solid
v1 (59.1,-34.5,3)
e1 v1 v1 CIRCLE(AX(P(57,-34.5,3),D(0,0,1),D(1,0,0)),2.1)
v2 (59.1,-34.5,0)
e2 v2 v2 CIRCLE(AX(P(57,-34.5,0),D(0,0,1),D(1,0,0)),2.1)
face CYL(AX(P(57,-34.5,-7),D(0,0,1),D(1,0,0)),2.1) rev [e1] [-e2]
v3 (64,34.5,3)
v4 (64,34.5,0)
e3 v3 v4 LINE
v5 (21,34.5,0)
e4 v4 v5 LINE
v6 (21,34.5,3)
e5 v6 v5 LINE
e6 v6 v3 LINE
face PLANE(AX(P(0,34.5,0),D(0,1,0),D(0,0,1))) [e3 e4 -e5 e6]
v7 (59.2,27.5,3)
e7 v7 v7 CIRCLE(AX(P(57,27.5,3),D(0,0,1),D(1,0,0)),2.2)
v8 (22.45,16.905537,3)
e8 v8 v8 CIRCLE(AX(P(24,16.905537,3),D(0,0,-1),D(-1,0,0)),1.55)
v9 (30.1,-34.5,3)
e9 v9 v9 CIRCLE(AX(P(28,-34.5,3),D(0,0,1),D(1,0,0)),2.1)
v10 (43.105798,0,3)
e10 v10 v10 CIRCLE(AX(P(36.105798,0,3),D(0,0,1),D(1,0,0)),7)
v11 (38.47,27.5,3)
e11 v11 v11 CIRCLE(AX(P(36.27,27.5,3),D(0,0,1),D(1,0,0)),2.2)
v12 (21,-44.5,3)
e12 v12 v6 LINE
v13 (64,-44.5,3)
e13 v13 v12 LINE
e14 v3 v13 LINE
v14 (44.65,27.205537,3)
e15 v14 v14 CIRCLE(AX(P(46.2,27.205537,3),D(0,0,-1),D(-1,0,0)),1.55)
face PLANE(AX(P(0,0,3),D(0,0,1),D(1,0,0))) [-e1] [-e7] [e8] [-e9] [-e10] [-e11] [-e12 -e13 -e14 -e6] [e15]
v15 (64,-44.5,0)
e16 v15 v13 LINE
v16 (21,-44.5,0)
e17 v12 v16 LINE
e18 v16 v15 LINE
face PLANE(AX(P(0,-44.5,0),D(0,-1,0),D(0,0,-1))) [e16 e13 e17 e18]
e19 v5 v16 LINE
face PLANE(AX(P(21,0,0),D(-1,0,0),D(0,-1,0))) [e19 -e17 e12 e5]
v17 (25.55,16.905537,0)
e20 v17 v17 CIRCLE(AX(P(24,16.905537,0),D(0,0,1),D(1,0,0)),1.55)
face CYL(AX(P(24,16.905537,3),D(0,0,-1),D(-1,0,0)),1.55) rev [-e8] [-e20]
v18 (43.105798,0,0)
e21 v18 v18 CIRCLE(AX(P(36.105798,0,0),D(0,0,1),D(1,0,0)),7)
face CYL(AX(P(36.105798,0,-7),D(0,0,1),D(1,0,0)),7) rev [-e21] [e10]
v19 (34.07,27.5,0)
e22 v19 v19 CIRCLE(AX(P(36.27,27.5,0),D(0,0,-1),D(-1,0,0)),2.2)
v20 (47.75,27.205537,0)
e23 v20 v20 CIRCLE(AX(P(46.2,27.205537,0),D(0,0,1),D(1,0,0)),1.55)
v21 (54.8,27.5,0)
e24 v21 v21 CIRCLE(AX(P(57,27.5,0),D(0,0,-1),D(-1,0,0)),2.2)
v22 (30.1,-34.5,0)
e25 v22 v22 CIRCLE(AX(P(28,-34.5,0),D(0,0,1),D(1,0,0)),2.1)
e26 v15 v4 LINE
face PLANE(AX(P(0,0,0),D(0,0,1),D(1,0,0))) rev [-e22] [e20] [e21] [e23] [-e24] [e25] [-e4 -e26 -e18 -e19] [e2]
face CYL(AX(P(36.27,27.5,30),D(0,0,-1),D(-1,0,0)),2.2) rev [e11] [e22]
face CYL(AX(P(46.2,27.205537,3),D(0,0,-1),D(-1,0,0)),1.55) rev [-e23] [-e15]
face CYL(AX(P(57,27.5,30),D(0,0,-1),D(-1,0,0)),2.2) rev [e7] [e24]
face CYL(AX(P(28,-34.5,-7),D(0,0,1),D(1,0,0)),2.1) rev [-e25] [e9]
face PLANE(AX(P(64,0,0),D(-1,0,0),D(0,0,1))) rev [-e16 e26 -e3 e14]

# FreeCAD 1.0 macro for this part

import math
import FreeCAD as App
import Part
import Sketcher

doc = App.newDocument("Part")
body = doc.addObject("PartDesign::Body", "Body")

# Sketch on XY plane
sketch1 = body.newObject("Sketcher::SketchObject", "Sketch")
sketch1.AttachmentSupport = (doc.getObject("XY_Plane"), [""])
sketch1.MapMode = "FlatFace"
sketch1.addGeometry([
    Part.LineSegment(App.Vector(-20, 14, 0), App.Vector(-20, -14, 0)),
    Part.LineSegment(App.Vector(-20, -14, 0), App.Vector(20, -14, 0)),
    Part.LineSegment(App.Vector(20, -14, 0), App.Vector(20, 14, 0)),
    Part.LineSegment(App.Vector(20, 14, 0), App.Vector(-20, 14, 0)),
], False)
sketch1.addConstraint([
    Sketcher.Constraint("Coincident", 0, 2, 1, 1),
    Sketcher.Constraint("Coincident", 1, 2, 2, 1),
    Sketcher.Constraint("Coincident", 2, 2, 3, 1),
    Sketcher.Constraint("Coincident", 3, 2, 0, 1),
    Sketcher.Constraint("Vertical", 0),
    Sketcher.Constraint("Horizontal", 1),
    Sketcher.Constraint("Vertical", 2),
    Sketcher.Constraint("Horizontal", 3),
    Sketcher.Constraint("Symmetric", 0, 2, 2, 2, -1, 1),
    Sketcher.Constraint("DistanceX", 1, 1, 1, 2, 40.0),
    Sketcher.Constraint("DistanceY", 0, 2, 0, 1, 29.0),
])
pad1 = body.newObject("PartDesign::Pad", "Pad")
pad1.Profile = sketch1
pad1.Length = 3

# Sketch on XY plane
sketch2 = body.newObject("Sketcher::SketchObject", "Sketch001")
sketch2.AttachmentSupport = (doc.getObject("XY_Plane"), [""])
sketch2.MapMode = "FlatFace"
sketch2.AttachmentOffset = App.Placement(App.Vector(0, 0, 3), App.Rotation())
sketch2.addGeometry([
    Part.ArcOfCircle(Part.Circle(App.Vector(-16.5, 10.5, 0), App.Vector(0, 0, 1), 2.1), math.radians(0), math.radians(90)),  # 0
    Part.ArcOfCircle(Part.Circle(App.Vector(-16.5, 10.5, 0), App.Vector(0, 0, 1), 2.1), math.radians(90), math.radians(180)),  # 1
    Part.ArcOfCircle(Part.Circle(App.Vector(-16.5, 10.5, 0), App.Vector(0, 0, 1), 2.1), math.radians(180), math.radians(360)),  # 2
    Part.ArcOfCircle(Part.Circle(App.Vector(-16.5, -10.5, 0), App.Vector(0, 0, 1), 2.1), math.radians(-180), math.radians(-90)),  # 3
    Part.ArcOfCircle(Part.Circle(App.Vector(-16.5, -10.5, 0), App.Vector(0, 0, 1), 2.1), math.radians(-90), math.radians(0)),  # 4
    Part.ArcOfCircle(Part.Circle(App.Vector(-16.5, -10.5, 0), App.Vector(0, 0, 1), 2.1), math.radians(0), math.radians(180)),  # 5
    Part.ArcOfCircle(Part.Circle(App.Vector(16.5, -10.5, 0), App.Vector(0, 0, 1), 2.1), math.radians(0), math.radians(270)),  # 6
    Part.ArcOfCircle(Part.Circle(App.Vector(16.5, -10.5, 0), App.Vector(0, 0, 1), 2.1), math.radians(-90), math.radians(0)),  # 7
    Part.ArcOfCircle(Part.Circle(App.Vector(16.5, 10.5, 0), App.Vector(0, 0, 1), 2.1), math.radians(0), math.radians(90)),  # 8
    Part.ArcOfCircle(Part.Circle(App.Vector(16.5, 10.5, 0), App.Vector(0, 0, 1), 2.1), math.radians(90), math.radians(360)),  # 9
], False)
sketch2.addConstraint([
    Sketcher.Constraint("Tangent", 0, 2, 1, 1),
    Sketcher.Constraint("Tangent", 1, 2, 2, 1),
    Sketcher.Constraint("Tangent", 2, 2, 0, 1),
    Sketcher.Constraint("Tangent", 3, 2, 4, 1),
    Sketcher.Constraint("Tangent", 4, 2, 5, 1),
    Sketcher.Constraint("Tangent", 5, 2, 3, 1),
    Sketcher.Constraint("Tangent", 6, 1, 7, 2),
    Sketcher.Constraint("Coincident", 7, 1, 6, 2),
    Sketcher.Constraint("Tangent", 8, 1, 9, 2),
    Sketcher.Constraint("Coincident", 9, 1, 8, 2),
    Sketcher.Constraint("Equal", 2, 3),
    Sketcher.Constraint("Equal", 5, 6),
    Sketcher.Constraint("Equal", 7, 8),
    Sketcher.Constraint("Symmetric", 0, 3, 6, 3, -1, 1),
    Sketcher.Constraint("Symmetric", 3, 3, 8, 3, -1, 1),
    Sketcher.Constraint("Symmetric", 3, 3, 6, 3, -2),
    Sketcher.Constraint("Horizontal", 9, 3, 1, 2),
    Sketcher.Constraint("Horizontal", 1, 2, 2, 2),
    Sketcher.Constraint("Horizontal", 7, 3, 4, 2),
    Sketcher.Constraint("Horizontal", 4, 2, 5, 2),
    Sketcher.Constraint("Horizontal", 5, 2, 6, 1),
    Sketcher.Constraint("Horizontal", 2, 2, 8, 1),
    Sketcher.Constraint("Vertical", 5, 3, 0, 2),
    Sketcher.Constraint("Vertical", 0, 2, 3, 2),
    Sketcher.Constraint("Vertical", 9, 3, 7, 1),
    Sketcher.Constraint("Vertical", 7, 1, 9, 1),
    Sketcher.Constraint("Radius", 0, 2.1),
    Sketcher.Constraint("DistanceY", 3, 3, 0, 3, 21.0),
    Sketcher.Constraint("DistanceX", 3, 3, 6, 3, 33.0),
])
pocket1 = body.newObject("PartDesign::Pocket", "Pocket")
pocket1.Profile = sketch2
pocket1.Length = 3

# Sketch on XZ plane
sketch3 = body.newObject("Sketcher::SketchObject", "Sketch002")
sketch3.AttachmentSupport = (doc.getObject("XZ_Plane"), [""])
sketch3.MapMode = "FlatFace"
sketch3.AttachmentOffset = App.Placement(App.Vector(0, 0, 14.5), App.Rotation())
sketch3.addGeometry([
    Part.LineSegment(App.Vector(-20, 3, 0), App.Vector(-20, 0, 0)),
    Part.LineSegment(App.Vector(-20, 0, 0), App.Vector(20, 0, 0)),
    Part.LineSegment(App.Vector(20, 0, 0), App.Vector(20, 3, 0)),
    Part.LineSegment(App.Vector(20, 3, 0), App.Vector(-20, 3, 0)),
], False)
sketch3.addConstraint([
    Sketcher.Constraint("Coincident", 0, 2, 1, 1),
    Sketcher.Constraint("Coincident", 1, 2, 2, 1),
    Sketcher.Constraint("Coincident", 2, 2, 3, 1),
    Sketcher.Constraint("Coincident", 3, 2, 0, 1),
    Sketcher.Constraint("Vertical", 0),
    Sketcher.Constraint("Horizontal", 1),
    Sketcher.Constraint("Vertical", 2),
    Sketcher.Constraint("Horizontal", 3),
    Sketcher.Constraint("Symmetric", 0, 2, 1, 2, -1, 1),
    Sketcher.Constraint("DistanceX", 1, 1, 1, 2, 40.0),
    Sketcher.Constraint("DistanceY", 0, 2, 0, 1, 3.0),
])
pad2 = body.newObject("PartDesign::Pad", "Pad001")
pad2.Profile = sketch3
pad2.Length = 10

# Sketch on XZ plane
sketch4 = body.newObject("Sketcher::SketchObject", "Sketch003")
sketch4.AttachmentSupport = (doc.getObject("XZ_Plane"), [""])
sketch4.MapMode = "FlatFace"
sketch4.AttachmentOffset = App.Placement(App.Vector(0, 0, -14.5), App.Rotation())
sketch4.addGeometry([
    Part.LineSegment(App.Vector(-20, 0, 0), App.Vector(-20, 3, 0)),
    Part.LineSegment(App.Vector(-20, 3, 0), App.Vector(20, 3, 0)),
    Part.LineSegment(App.Vector(20, 3, 0), App.Vector(20, 0, 0)),
    Part.LineSegment(App.Vector(20, 0, 0), App.Vector(-20, 0, 0)),
], False)
sketch4.addConstraint([
    Sketcher.Constraint("Coincident", 0, 2, 1, 1),
    Sketcher.Constraint("Coincident", 1, 2, 2, 1),
    Sketcher.Constraint("Coincident", 2, 2, 3, 1),
    Sketcher.Constraint("Coincident", 3, 2, 0, 1),
    Sketcher.Constraint("Vertical", 0),
    Sketcher.Constraint("Horizontal", 1),
    Sketcher.Constraint("Vertical", 2),
    Sketcher.Constraint("Horizontal", 3),
    Sketcher.Constraint("Symmetric", 2, 2, 3, 2, -1, 1),
    Sketcher.Constraint("DistanceX", 1, 1, 1, 2, 40.0),
    Sketcher.Constraint("DistanceY", 0, 1, 0, 2, 3.0),
])
pad3 = body.newObject("PartDesign::Pad", "Pad002")
pad3.Profile = sketch4
pad3.Length = 10
pad3.Reversed = True

# Sketch on YZ plane
sketch5 = body.newObject("Sketcher::SketchObject", "Sketch004")
sketch5.AttachmentSupport = (doc.getObject("YZ_Plane"), [""])
sketch5.MapMode = "FlatFace"
sketch5.AttachmentOffset = App.Placement(App.Vector(0, 0, 20), App.Rotation())
sketch5.addGeometry([
    Part.LineSegment(App.Vector(24.5, 3, 0), App.Vector(-24.5, 3, 0)),
    Part.LineSegment(App.Vector(-24.5, 3, 0), App.Vector(-24.5, 0, 0)),
    Part.LineSegment(App.Vector(-24.5, 0, 0), App.Vector(24.5, 0, 0)),
    Part.LineSegment(App.Vector(24.5, 0, 0), App.Vector(24.5, 3, 0)),
], False)
sketch5.addConstraint([
    Sketcher.Constraint("Coincident", 0, 2, 1, 1),
    Sketcher.Constraint("Coincident", 1, 2, 2, 1),
    Sketcher.Constraint("Coincident", 2, 2, 3, 1),
    Sketcher.Constraint("Coincident", 3, 2, 0, 1),
    Sketcher.Constraint("Horizontal", 0),
    Sketcher.Constraint("Vertical", 1),
    Sketcher.Constraint("Horizontal", 2),
    Sketcher.Constraint("Vertical", 3),
    Sketcher.Constraint("Symmetric", 1, 2, 2, 2, -1, 1),
    Sketcher.Constraint("DistanceX", 0, 2, 0, 1, 49.0),
    Sketcher.Constraint("DistanceY", 1, 2, 1, 1, 3.0),
])
pad4 = body.newObject("PartDesign::Pad", "Pad003")
pad4.Profile = sketch5
pad4.Length = 42

# Sketch on YZ plane
sketch6 = body.newObject("Sketcher::SketchObject", "Sketch005")
sketch6.AttachmentSupport = (doc.getObject("YZ_Plane"), [""])
sketch6.MapMode = "FlatFace"
sketch6.AttachmentOffset = App.Placement(App.Vector(0, 0, -20), App.Rotation())
sketch6.addGeometry([
    Part.LineSegment(App.Vector(24.5, 0, 0), App.Vector(-24.5, 0, 0)),
    Part.LineSegment(App.Vector(-24.5, 0, 0), App.Vector(-24.5, 3, 0)),
    Part.LineSegment(App.Vector(-24.5, 3, 0), App.Vector(24.5, 3, 0)),
    Part.LineSegment(App.Vector(24.5, 3, 0), App.Vector(24.5, 0, 0)),
], False)
sketch6.addConstraint([
    Sketcher.Constraint("Coincident", 0, 2, 1, 1),
    Sketcher.Constraint("Coincident", 1, 2, 2, 1),
    Sketcher.Constraint("Coincident", 2, 2, 3, 1),
    Sketcher.Constraint("Coincident", 3, 2, 0, 1),
    Sketcher.Constraint("Horizontal", 0),
    Sketcher.Constraint("Vertical", 1),
    Sketcher.Constraint("Horizontal", 2),
    Sketcher.Constraint("Vertical", 3),
    Sketcher.Constraint("Symmetric", 0, 2, 3, 2, -1, 1),
    Sketcher.Constraint("DistanceX", 0, 2, 0, 1, 49.0),
    Sketcher.Constraint("DistanceY", 1, 1, 1, 2, 3.0),
])
pad5 = body.newObject("PartDesign::Pad", "Pad004")
pad5.Profile = sketch6
pad5.Length = 2
pad5.Reversed = True

# Sketch on YZ plane
sketch7 = body.newObject("Sketcher::SketchObject", "Sketch006")
sketch7.AttachmentSupport = (doc.getObject("YZ_Plane"), [""])
sketch7.MapMode = "FlatFace"
sketch7.AttachmentOffset = App.Placement(App.Vector(0, 0, 62), App.Rotation())
sketch7.addGeometry([
    Part.LineSegment(App.Vector(24.5, 3, 0), App.Vector(-24.5, 3, 0)),
    Part.LineSegment(App.Vector(-24.5, 3, 0), App.Vector(-24.5, 0, 0)),
    Part.LineSegment(App.Vector(-24.5, 0, 0), App.Vector(24.5, 0, 0)),
    Part.LineSegment(App.Vector(24.5, 0, 0), App.Vector(24.5, 3, 0)),
], False)
sketch7.addConstraint([
    Sketcher.Constraint("Coincident", 0, 2, 1, 1),
    Sketcher.Constraint("Coincident", 1, 2, 2, 1),
    Sketcher.Constraint("Coincident", 2, 2, 3, 1),
    Sketcher.Constraint("Coincident", 3, 2, 0, 1),
    Sketcher.Constraint("Horizontal", 0),
    Sketcher.Constraint("Vertical", 1),
    Sketcher.Constraint("Horizontal", 2),
    Sketcher.Constraint("Vertical", 3),
    Sketcher.Constraint("Symmetric", 1, 2, 2, 2, -1, 1),
    Sketcher.Constraint("DistanceX", 0, 2, 0, 1, 49.0),
    Sketcher.Constraint("DistanceY", 1, 2, 1, 1, 3.0),
])
pad6 = body.newObject("PartDesign::Pad", "Pad005")
pad6.Profile = sketch7
pad6.Length = 2

# Sketch on XZ plane
sketch8 = body.newObject("Sketcher::SketchObject", "Sketch007")
sketch8.AttachmentSupport = (doc.getObject("XZ_Plane"), [""])
sketch8.MapMode = "FlatFace"
sketch8.AttachmentOffset = App.Placement(App.Vector(0, 0, 24.5), App.Rotation())
sketch8.addGeometry([
    Part.LineSegment(App.Vector(-22, 3, 0), App.Vector(-22, 0, 0)),
    Part.LineSegment(App.Vector(-22, 0, 0), App.Vector(64, 0, 0)),
    Part.LineSegment(App.Vector(64, 0, 0), App.Vector(64, 3, 0)),
    Part.LineSegment(App.Vector(64, 3, 0), App.Vector(-22, 3, 0)),
], False)
sketch8.addConstraint([
    Sketcher.Constraint("Coincident", 0, 2, 1, 1),
    Sketcher.Constraint("Coincident", 1, 2, 2, 1),
    Sketcher.Constraint("Coincident", 2, 2, 3, 1),
    Sketcher.Constraint("Coincident", 3, 2, 0, 1),
    Sketcher.Constraint("Vertical", 0),
    Sketcher.Constraint("Horizontal", 1),
    Sketcher.Constraint("Vertical", 2),
    Sketcher.Constraint("Horizontal", 3),
    Sketcher.Constraint("PointOnObject", 0, 2, -1),
    Sketcher.Constraint("DistanceX", 1, 1, 1, 2, 86.0),
    Sketcher.Constraint("DistanceY", 0, 2, 0, 1, 3.0),
    Sketcher.Constraint("DistanceX", 0, 2, -1, 1, 22.0),
])
pad7 = body.newObject("PartDesign::Pad", "Pad006")
pad7.Profile = sketch8
pad7.Length = 10

# Sketch on XZ plane
sketch9 = body.newObject("Sketcher::SketchObject", "Sketch008")
sketch9.AttachmentSupport = (doc.getObject("XZ_Plane"), [""])
sketch9.MapMode = "FlatFace"
sketch9.AttachmentOffset = App.Placement(App.Vector(0, 0, -24.5), App.Rotation())
sketch9.addGeometry([
    Part.LineSegment(App.Vector(-22, 0, 0), App.Vector(-22, 3, 0)),
    Part.LineSegment(App.Vector(-22, 3, 0), App.Vector(64, 3, 0)),
    Part.LineSegment(App.Vector(64, 3, 0), App.Vector(64, 0, 0)),
    Part.LineSegment(App.Vector(64, 0, 0), App.Vector(-22, 0, 0)),
], False)
sketch9.addConstraint([
    Sketcher.Constraint("Coincident", 0, 2, 1, 1),
    Sketcher.Constraint("Coincident", 1, 2, 2, 1),
    Sketcher.Constraint("Coincident", 2, 2, 3, 1),
    Sketcher.Constraint("Coincident", 3, 2, 0, 1),
    Sketcher.Constraint("Vertical", 0),
    Sketcher.Constraint("Horizontal", 1),
    Sketcher.Constraint("Vertical", 2),
    Sketcher.Constraint("Horizontal", 3),
    Sketcher.Constraint("PointOnObject", 2, 2, -1),
    Sketcher.Constraint("DistanceX", 1, 1, 1, 2, 86.0),
    Sketcher.Constraint("DistanceY", 0, 1, 0, 2, 3.0),
    Sketcher.Constraint("DistanceX", 0, 2, -1, 1, 22.0),
])
pad8 = body.newObject("PartDesign::Pad", "Pad007")
pad8.Profile = sketch9
pad8.Length = 10
pad8.Reversed = True

# Sketch on XY plane
sketch10 = body.newObject("Sketcher::SketchObject", "Sketch009")
sketch10.AttachmentSupport = (doc.getObject("XY_Plane"), [""])
sketch10.MapMode = "FlatFace"
sketch10.AttachmentOffset = App.Placement(App.Vector(0, 0, 3), App.Rotation())
sketch10.addGeometry(Part.Circle(App.Vector(36, 0, 0), App.Vector(0, 0, 1), 7), False)
sketch10.addConstraint([
    Sketcher.Constraint("PointOnObject", 0, 3, -1),
    Sketcher.Constraint("Diameter", 0, 14.0),
    Sketcher.Constraint("DistanceX", -1, 1, 0, 3, 36.105798),
])
pocket2 = body.newObject("PartDesign::Pocket", "Pocket001")
pocket2.Profile = sketch10
pocket2.Length = 10

# Sketch on YZ plane
sketch11 = body.newObject("Sketcher::SketchObject", "Sketch010")
sketch11.AttachmentSupport = (doc.getObject("YZ_Plane"), [""])
sketch11.MapMode = "FlatFace"
sketch11.AttachmentOffset = App.Placement(App.Vector(0, 0, -22), App.Rotation())
sketch11.addGeometry([
    Part.LineSegment(App.Vector(34.5, 0, 0), App.Vector(-34.5, 0, 0)),
    Part.LineSegment(App.Vector(-34.5, 0, 0), App.Vector(-34.5, 3, 0)),
    Part.LineSegment(App.Vector(-34.5, 3, 0), App.Vector(34.5, 3, 0)),
    Part.LineSegment(App.Vector(34.5, 3, 0), App.Vector(34.5, 0, 0)),
], False)
sketch11.addConstraint([
    Sketcher.Constraint("Coincident", 0, 2, 1, 1),
    Sketcher.Constraint("Coincident", 1, 2, 2, 1),
    Sketcher.Constraint("Coincident", 2, 2, 3, 1),
    Sketcher.Constraint("Coincident", 3, 2, 0, 1),
    Sketcher.Constraint("Horizontal", 0),
    Sketcher.Constraint("Vertical", 1),
    Sketcher.Constraint("Horizontal", 2),
    Sketcher.Constraint("Vertical", 3),
    Sketcher.Constraint("Symmetric", 0, 2, 3, 2, -1, 1),
    Sketcher.Constraint("DistanceX", 0, 2, 0, 1, 69.0),
    Sketcher.Constraint("DistanceY", 1, 1, 1, 2, 3.0),
])
pocket3 = body.newObject("PartDesign::Pocket", "Pocket002")
pocket3.Profile = sketch11
pocket3.Length = 43
pocket3.Reversed = True

# Sketch on XZ plane
sketch12 = body.newObject("Sketcher::SketchObject", "Sketch011")
sketch12.AttachmentSupport = (doc.getObject("XZ_Plane"), [""])
sketch12.MapMode = "FlatFace"
sketch12.AttachmentOffset = App.Placement(App.Vector(0, 0, 34.5), App.Rotation())
sketch12.addGeometry([
    Part.LineSegment(App.Vector(21, 3, 0), App.Vector(21, 0, 0)),
    Part.LineSegment(App.Vector(21, 0, 0), App.Vector(64, 0, 0)),
    Part.LineSegment(App.Vector(64, 0, 0), App.Vector(64, 3, 0)),
    Part.LineSegment(App.Vector(64, 3, 0), App.Vector(21, 3, 0)),
], False)
sketch12.addConstraint([
    Sketcher.Constraint("Coincident", 0, 2, 1, 1),
    Sketcher.Constraint("Coincident", 1, 2, 2, 1),
    Sketcher.Constraint("Coincident", 2, 2, 3, 1),
    Sketcher.Constraint("Coincident", 3, 2, 0, 1),
    Sketcher.Constraint("Vertical", 0),
    Sketcher.Constraint("Horizontal", 1),
    Sketcher.Constraint("Vertical", 2),
    Sketcher.Constraint("Horizontal", 3),
    Sketcher.Constraint("PointOnObject", 0, 2, -1),
    Sketcher.Constraint("DistanceX", 1, 1, 1, 2, 43.0),
    Sketcher.Constraint("DistanceY", 0, 2, 0, 1, 3.0),
    Sketcher.Constraint("DistanceX", -1, 1, 0, 2, 21.0),
])
pad9 = body.newObject("PartDesign::Pad", "Pad008")
pad9.Profile = sketch12
pad9.Length = 20

# Sketch on XY plane
sketch13 = body.newObject("Sketcher::SketchObject", "Sketch012")
sketch13.AttachmentSupport = (doc.getObject("XY_Plane"), [""])
sketch13.MapMode = "FlatFace"
sketch13.AttachmentOffset = App.Placement(App.Vector(0, 0, 3), App.Rotation())
sketch13.addGeometry([
    Part.Circle(App.Vector(28, -34.5, 0), App.Vector(0, 0, 1), 2.1),
    Part.Circle(App.Vector(57, -34.5, 0), App.Vector(0, 0, 1), 2.1),
], False)
sketch13.addConstraint([
    Sketcher.Constraint("Equal", 0, 1),
    Sketcher.Constraint("Horizontal", 0, 3, 1, 3),
    Sketcher.Constraint("Diameter", 0, 4.2),
    Sketcher.Constraint("DistanceX", -1, 1, 0, 3, 28.0),
    Sketcher.Constraint("DistanceX", -1, 1, 1, 3, 57.0),
    Sketcher.Constraint("DistanceY", 0, 3, -1, 1, 34.5),
])
pocket4 = body.newObject("PartDesign::Pocket", "Pocket003")
pocket4.Profile = sketch13
pocket4.Length = 10

# Sketch on XZ plane
sketch14 = body.newObject("Sketcher::SketchObject", "Sketch013")
sketch14.AttachmentSupport = (doc.getObject("XZ_Plane"), [""])
sketch14.MapMode = "FlatFace"
sketch14.AttachmentOffset = App.Placement(App.Vector(0, 0, 54.5), App.Rotation())
sketch14.addGeometry([
    Part.LineSegment(App.Vector(21, 3, 0), App.Vector(21, 0, 0)),
    Part.LineSegment(App.Vector(21, 0, 0), App.Vector(64, 0, 0)),
    Part.LineSegment(App.Vector(64, 0, 0), App.Vector(64, 3, 0)),
    Part.LineSegment(App.Vector(64, 3, 0), App.Vector(21, 3, 0)),
], False)
sketch14.addConstraint([
    Sketcher.Constraint("Coincident", 0, 2, 1, 1),
    Sketcher.Constraint("Coincident", 1, 2, 2, 1),
    Sketcher.Constraint("Coincident", 2, 2, 3, 1),
    Sketcher.Constraint("Coincident", 3, 2, 0, 1),
    Sketcher.Constraint("Vertical", 0),
    Sketcher.Constraint("Horizontal", 1),
    Sketcher.Constraint("Vertical", 2),
    Sketcher.Constraint("Horizontal", 3),
    Sketcher.Constraint("PointOnObject", 0, 2, -1),
    Sketcher.Constraint("DistanceX", 1, 1, 1, 2, 43.0),
    Sketcher.Constraint("DistanceY", 0, 2, 0, 1, 3.0),
    Sketcher.Constraint("DistanceX", -1, 1, 0, 2, 21.0),
])
pad10 = body.newObject("PartDesign::Pad", "Pad009")
pad10.Profile = sketch14
pad10.Length = 10

# Sketch on XZ plane
sketch15 = body.newObject("Sketcher::SketchObject", "Sketch014")
sketch15.AttachmentSupport = (doc.getObject("XZ_Plane"), [""])
sketch15.MapMode = "FlatFace"
sketch15.AttachmentOffset = App.Placement(App.Vector(0, 0, 64.5), App.Rotation())
sketch15.addGeometry([
    Part.LineSegment(App.Vector(21, 3, 0), App.Vector(21, 0, 0)),
    Part.LineSegment(App.Vector(21, 0, 0), App.Vector(64, 0, 0)),
    Part.LineSegment(App.Vector(64, 0, 0), App.Vector(64, 3, 0)),
    Part.LineSegment(App.Vector(64, 3, 0), App.Vector(21, 3, 0)),
], False)
sketch15.addConstraint([
    Sketcher.Constraint("Coincident", 0, 2, 1, 1),
    Sketcher.Constraint("Coincident", 1, 2, 2, 1),
    Sketcher.Constraint("Coincident", 2, 2, 3, 1),
    Sketcher.Constraint("Coincident", 3, 2, 0, 1),
    Sketcher.Constraint("Vertical", 0),
    Sketcher.Constraint("Horizontal", 1),
    Sketcher.Constraint("Vertical", 2),
    Sketcher.Constraint("Horizontal", 3),
    Sketcher.Constraint("PointOnObject", 0, 2, -1),
    Sketcher.Constraint("DistanceX", 1, 1, 1, 2, 43.0),
    Sketcher.Constraint("DistanceY", 0, 2, 0, 1, 3.0),
    Sketcher.Constraint("DistanceX", -1, 1, 0, 2, 21.0),
])
pocket5 = body.newObject("PartDesign::Pocket", "Pocket004")
pocket5.Profile = sketch15
pocket5.Length = 20

# Sketch on XY plane
sketch16 = body.newObject("Sketcher::SketchObject", "Sketch015")
sketch16.AttachmentSupport = (doc.getObject("XY_Plane"), [""])
sketch16.MapMode = "FlatFace"
sketch16.addGeometry([
    Part.Circle(App.Vector(36.3, 27.5, 0), App.Vector(0, 0, 1), 2.2),
    Part.Circle(App.Vector(57, 27.5, 0), App.Vector(0, 0, 1), 2.2),
], False)
sketch16.addConstraint([
    Sketcher.Constraint("Equal", 0, 1),
    Sketcher.Constraint("Horizontal", 0, 3, 1, 3),
    Sketcher.Constraint("Diameter", 0, 4.4),
    Sketcher.Constraint("DistanceX", -1, 1, 1, 3, 57.0),
    Sketcher.Constraint("DistanceY", -1, 1, 0, 3, 27.5),
    Sketcher.Constraint("DistanceX", -1, 1, 0, 3, 36.27),
])
pocket6 = body.newObject("PartDesign::Pocket", "Pocket005")
pocket6.Profile = sketch16
pocket6.Length = 30
pocket6.Reversed = True

# Sketch on XY plane
sketch17 = body.newObject("Sketcher::SketchObject", "Sketch016")
sketch17.AttachmentSupport = (doc.getObject("XY_Plane"), [""])
sketch17.MapMode = "FlatFace"
sketch17.addGeometry([
    Part.Circle(App.Vector(24, 16.9, 0), App.Vector(0, 0, 1), 1.6),
    Part.Circle(App.Vector(46.2, 27.2, 0), App.Vector(0, 0, 1), 1.6),
], False)
sketch17.addConstraint([
    Sketcher.Constraint("Equal", 0, 1),
    Sketcher.Constraint("Diameter", 0, 3.1),
    Sketcher.Constraint("DistanceX", -1, 1, 0, 3, 24.0),
    Sketcher.Constraint("DistanceX", -1, 1, 1, 3, 46.2),
    Sketcher.Constraint("DistanceY", 0, 3, 1, 3, 10.3),
    Sketcher.Constraint("DistanceY", -1, 1, 0, 3, 16.905537),
])
pocket7 = body.newObject("PartDesign::Pocket", "Pocket006")
pocket7.Profile = sketch17
pocket7.Type = "ThroughAll"
pocket7.Midplane = True

doc.recompute()
